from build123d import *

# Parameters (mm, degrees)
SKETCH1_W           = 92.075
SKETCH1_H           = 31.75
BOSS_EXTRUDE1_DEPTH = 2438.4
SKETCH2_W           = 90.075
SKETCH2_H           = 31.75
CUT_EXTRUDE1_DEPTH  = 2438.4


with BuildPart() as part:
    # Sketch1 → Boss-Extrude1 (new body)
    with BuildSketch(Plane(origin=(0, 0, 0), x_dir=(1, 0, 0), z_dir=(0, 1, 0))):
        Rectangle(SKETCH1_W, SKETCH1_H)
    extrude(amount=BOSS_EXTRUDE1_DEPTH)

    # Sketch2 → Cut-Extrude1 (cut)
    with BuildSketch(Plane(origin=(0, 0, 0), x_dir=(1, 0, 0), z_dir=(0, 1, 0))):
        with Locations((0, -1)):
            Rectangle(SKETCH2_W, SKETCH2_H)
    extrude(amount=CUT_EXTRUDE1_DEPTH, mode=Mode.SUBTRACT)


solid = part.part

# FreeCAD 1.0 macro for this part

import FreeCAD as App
import Part
import Sketcher
from FreeCAD import Vector
Q = App.Units.Quantity


def add_polygon(sketch, points):
    """Adds a closed chain of lines whose ends are joined by coincident constraints."""
    first, n = sketch.GeometryCount, len(points)
    for a, b in zip(points, points[1:] + points[:1]):
        sketch.addGeometry(Part.LineSegment(App.Vector(*a, 0), App.Vector(*b, 0)), False)
    for i in range(n):
        sketch.addConstraint(Sketcher.Constraint("Coincident", first + i, 2, first + (i + 1) % n, 1))

doc = App.newDocument("Part")
params = doc.addObject("Spreadsheet::Sheet", "Params")
for row, (alias, value) in enumerate([
    ("sketch1_height", "1.25 in"),
    ("sketch1_width", "3.625 in"),
    ("pad1_length", "96 in"),
    ("sketch2_height", "1.25 in"),
    ("pocket1_length", "96 in"),
], start=1):
    params.set(f"A{row}", alias)
    params.set(f"B{row}", "=" + value)
    params.setAlias(f"B{row}", alias)

body = doc.addObject("PartDesign::Body", "Body")

# Sketch on XZ plane
sketch1 = body.newObject("Sketcher::SketchObject", "Sketch")
sketch1.AttachmentSupport = (doc.getObject("XZ_Plane"), [""])
sketch1.MapMode = "FlatFace"
add_polygon(sketch1, [(-46, -16), (-46, 16), (46, 16), (46, -16)])  # lines 0-3
sketch1.addConstraint([
    Sketcher.Constraint("Vertical", 0),
    Sketcher.Constraint("Horizontal", 1),
    Sketcher.Constraint("Vertical", 2),
    Sketcher.Constraint("Horizontal", 3),
    Sketcher.Constraint("Symmetric", 0, 2, 2, 2, -1, 1),
    Sketcher.Constraint("DistanceY", 0, 1, 0, 2, Q("1.25 in")),
    Sketcher.Constraint("DistanceX", 1, 1, 1, 2, Q("3.625 in")),
])
sketch1.setExpression("Constraints[9]", "Params.sketch1_height")
sketch1.setExpression("Constraints[10]", "Params.sketch1_width")
pad1 = body.newObject("PartDesign::Pad", "Pad")
pad1.Profile = sketch1
pad1.setExpression("Length", "Params.pad1_length")
pad1.Reversed = True

# Sketch on XZ plane
sketch2 = body.newObject("Sketcher::SketchObject", "Sketch001")
sketch2.AttachmentSupport = (doc.getObject("XZ_Plane"), [""])
sketch2.MapMode = "FlatFace"
add_polygon(sketch2, [(-45, -15), (-45, 17), (45, 17), (45, -15)])  # lines 0-3
sketch2.addConstraint([
    Sketcher.Constraint("Vertical", 0),
    Sketcher.Constraint("Horizontal", 1),
    Sketcher.Constraint("Vertical", 2),
    Sketcher.Constraint("Horizontal", 3),
    Sketcher.Constraint("DistanceY", 0, 1, 0, 2, Q("1.25 in")),
    Sketcher.Constraint("DistanceX", 1, 1, 1, 2, 90.075),
    Sketcher.Constraint("DistanceX", 0, 2, -1, 1, 45.0375),
    Sketcher.Constraint("DistanceY", -1, 1, 0, 2, 16.875),
])
sketch2.setExpression("Constraints[8]", "Params.sketch2_height")
pocket1 = body.newObject("PartDesign::Pocket", "Pocket")
pocket1.Profile = sketch2
pocket1.setExpression("Length", "Params.pocket1_length")

doc.recompute()
